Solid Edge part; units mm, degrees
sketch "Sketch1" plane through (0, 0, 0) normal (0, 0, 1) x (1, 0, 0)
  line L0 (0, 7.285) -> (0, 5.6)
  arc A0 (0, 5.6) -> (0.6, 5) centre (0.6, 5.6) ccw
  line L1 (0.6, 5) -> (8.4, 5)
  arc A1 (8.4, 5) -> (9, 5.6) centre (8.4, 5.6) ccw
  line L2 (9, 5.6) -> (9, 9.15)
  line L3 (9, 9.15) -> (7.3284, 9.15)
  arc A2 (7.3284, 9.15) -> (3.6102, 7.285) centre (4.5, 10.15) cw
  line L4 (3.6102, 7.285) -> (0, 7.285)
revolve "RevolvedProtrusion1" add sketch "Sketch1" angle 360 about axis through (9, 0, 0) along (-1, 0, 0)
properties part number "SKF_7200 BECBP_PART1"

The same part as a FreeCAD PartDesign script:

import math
import FreeCAD as App
import Part
import Sketcher

V = App.Vector

doc = App.newDocument("Part")
body = doc.addObject("PartDesign::Body", "Body")

# Sketch on XY plane
sketch1 = doc.addObject("Sketcher::SketchObject", "Sketch")
body.addObject(sketch1)
sketch1.AttachmentSupport = (doc.XY_Plane, [""])
sketch1.MapMode = "FlatFace"
sketch1.addGeometry(Part.LineSegment(V(3.6102, 7.285, 0), V(0, 7.285, 0)), False)
sketch1.addGeometry(Part.LineSegment(V(0, 7.285, 0), V(0, 5.6, 0)), False)
sketch1.addGeometry(Part.ArcOfCircle(Part.Circle(V(0.6, 5.6, 0), V(0, 0, 1), 0.6), math.radians(180), math.radians(270)), False)
sketch1.addGeometry(Part.LineSegment(V(0.6, 5, 0), V(8.4, 5, 0)), False)
sketch1.addGeometry(Part.ArcOfCircle(Part.Circle(V(8.4, 5.6, 0), V(0, 0, 1), 0.6), math.radians(-90), math.radians(0)), False)
sketch1.addGeometry(Part.LineSegment(V(9, 5.6, 0), V(9, 9.15, 0)), False)
sketch1.addGeometry(Part.LineSegment(V(9, 9.15, 0), V(7.3284, 9.15, 0)), False)
sketch1.addGeometry(Part.ArcOfCircle(Part.Circle(V(4.5, 10.15, 0), V(0, 0, 1), 2.999974), math.radians(-107.253536), math.radians(-19.471393)), False)
sketch1.addConstraint(Sketcher.Constraint("Coincident", 0, 2, 1, 1))
sketch1.addConstraint(Sketcher.Constraint("Tangent", 1, 2, 2, 1))
sketch1.addConstraint(Sketcher.Constraint("Tangent", 2, 2, 3, 1))
sketch1.addConstraint(Sketcher.Constraint("Tangent", 3, 2, 4, 1))
sketch1.addConstraint(Sketcher.Constraint("Tangent", 4, 2, 5, 1))
sketch1.addConstraint(Sketcher.Constraint("Coincident", 5, 2, 6, 1))
sketch1.addConstraint(Sketcher.Constraint("Coincident", 6, 2, 7, 2))
sketch1.addConstraint(Sketcher.Constraint("Coincident", 7, 1, 0, 1))
sketch1.addConstraint(Sketcher.Constraint("Horizontal", 0))
sketch1.addConstraint(Sketcher.Constraint("Vertical", 1))
sketch1.addConstraint(Sketcher.Constraint("Horizontal", 3))
sketch1.addConstraint(Sketcher.Constraint("Vertical", 5))
sketch1.addConstraint(Sketcher.Constraint("Horizontal", 6))
sketch1.addConstraint(Sketcher.Constraint("Equal", 2, 4))
sketch1.addConstraint(Sketcher.Constraint("PointOnObject", 0, 2, -2))
sketch1.addConstraint(Sketcher.Constraint("Radius", 7, 3.0))
sketch1.addConstraint(Sketcher.Constraint("Radius", 2, 0.6))
sketch1.addConstraint(Sketcher.Constraint("DistanceX", 3, 1, 3, 2, 7.8))
sketch1.addConstraint(Sketcher.Constraint("DistanceY", -1, 1, 2, 2, 5.0))
sketch1.addConstraint(Sketcher.Constraint("DistanceY", 5, 2, 7, 3, 1.0))
sketch1.addConstraint(Sketcher.Constraint("DistanceY", 5, 1, 5, 2, 3.55))
sketch1.addConstraint(Sketcher.Constraint("DistanceX", -1, 1, 7, 3, 4.5))
sketch1.addConstraint(Sketcher.Constraint("DistanceY", 1, 2, 1, 1, 1.685))
revolution = doc.addObject("PartDesign::Revolution", "Revolution")
body.addObject(revolution)
revolution.Profile = sketch1
revolution.ReferenceAxis = (sketch1, ["H_Axis"])
revolution.Angle = 360

doc.recompute()
